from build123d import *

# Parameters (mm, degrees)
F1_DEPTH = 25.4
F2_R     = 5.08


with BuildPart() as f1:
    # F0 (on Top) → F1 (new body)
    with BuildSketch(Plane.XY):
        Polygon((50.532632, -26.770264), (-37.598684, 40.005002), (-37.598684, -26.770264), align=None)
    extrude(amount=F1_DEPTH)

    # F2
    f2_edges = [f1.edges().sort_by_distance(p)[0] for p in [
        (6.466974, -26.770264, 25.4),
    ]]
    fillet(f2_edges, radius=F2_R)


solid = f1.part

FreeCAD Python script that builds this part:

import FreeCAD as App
import Part
import Sketcher

V = App.Vector
Q = App.Units.Quantity


def edges_at(feature, points):
    """Names of the edges that pass closest to the given points."""
    edges = feature.Shape.Edges
    near = lambda p: min(range(len(edges)), key=lambda i: edges[i].distToShape(Part.Vertex(*p))[0])
    return sorted({f"Edge{near(p) + 1}" for p in points})

doc = App.newDocument("Part")
body = doc.addObject("PartDesign::Body", "Body")

# Sketch on XY plane
sketch1 = body.newObject("Sketcher::SketchObject", "Sketch")
sketch1.AttachmentSupport = (doc.getObject("XY_Plane"), [""])
sketch1.MapMode = "FlatFace"
sketch1.addGeometry(Part.LineSegment(V(51, -27, 0), V(-38, 40, 0)), False)
sketch1.addGeometry(Part.LineSegment(V(-38, 40, 0), V(-38, -27, 0)), False)
sketch1.addGeometry(Part.LineSegment(V(-38, -27, 0), V(51, -27, 0)), False)
sketch1.addConstraint(Sketcher.Constraint("Coincident", 0, 2, 1, 1))
sketch1.addConstraint(Sketcher.Constraint("Coincident", 1, 2, 2, 1))
sketch1.addConstraint(Sketcher.Constraint("Coincident", 2, 2, 0, 1))
sketch1.addConstraint(Sketcher.Constraint("Vertical", 1))
sketch1.addConstraint(Sketcher.Constraint("Horizontal", 2))
sketch1.addConstraint(Sketcher.Constraint("DistanceY", -1, 1, 0, 2, Q("1.5750001 in")))
sketch1.addConstraint(Sketcher.Constraint("DistanceX", 2, 1, 2, 2, Q("88.131316 mm")))
sketch1.addConstraint(Sketcher.Constraint("DistanceY", 1, 2, 1, 1, Q("66.775266 mm")))
sketch1.addConstraint(Sketcher.Constraint("DistanceX", 0, 2, -1, 1, Q("37.598684 mm")))
pad1 = body.newObject("PartDesign::Pad", "Pad")
pad1.Profile = sketch1
pad1.Length = Q("1 in")
doc.recompute()

fillet = body.newObject("PartDesign::Fillet", "Fillet")
fillet.Base = (pad1, edges_at(pad1, [(6.467, -26.77, 25.4)]))
fillet.Radius = Q("0.2 in")

doc.recompute()
